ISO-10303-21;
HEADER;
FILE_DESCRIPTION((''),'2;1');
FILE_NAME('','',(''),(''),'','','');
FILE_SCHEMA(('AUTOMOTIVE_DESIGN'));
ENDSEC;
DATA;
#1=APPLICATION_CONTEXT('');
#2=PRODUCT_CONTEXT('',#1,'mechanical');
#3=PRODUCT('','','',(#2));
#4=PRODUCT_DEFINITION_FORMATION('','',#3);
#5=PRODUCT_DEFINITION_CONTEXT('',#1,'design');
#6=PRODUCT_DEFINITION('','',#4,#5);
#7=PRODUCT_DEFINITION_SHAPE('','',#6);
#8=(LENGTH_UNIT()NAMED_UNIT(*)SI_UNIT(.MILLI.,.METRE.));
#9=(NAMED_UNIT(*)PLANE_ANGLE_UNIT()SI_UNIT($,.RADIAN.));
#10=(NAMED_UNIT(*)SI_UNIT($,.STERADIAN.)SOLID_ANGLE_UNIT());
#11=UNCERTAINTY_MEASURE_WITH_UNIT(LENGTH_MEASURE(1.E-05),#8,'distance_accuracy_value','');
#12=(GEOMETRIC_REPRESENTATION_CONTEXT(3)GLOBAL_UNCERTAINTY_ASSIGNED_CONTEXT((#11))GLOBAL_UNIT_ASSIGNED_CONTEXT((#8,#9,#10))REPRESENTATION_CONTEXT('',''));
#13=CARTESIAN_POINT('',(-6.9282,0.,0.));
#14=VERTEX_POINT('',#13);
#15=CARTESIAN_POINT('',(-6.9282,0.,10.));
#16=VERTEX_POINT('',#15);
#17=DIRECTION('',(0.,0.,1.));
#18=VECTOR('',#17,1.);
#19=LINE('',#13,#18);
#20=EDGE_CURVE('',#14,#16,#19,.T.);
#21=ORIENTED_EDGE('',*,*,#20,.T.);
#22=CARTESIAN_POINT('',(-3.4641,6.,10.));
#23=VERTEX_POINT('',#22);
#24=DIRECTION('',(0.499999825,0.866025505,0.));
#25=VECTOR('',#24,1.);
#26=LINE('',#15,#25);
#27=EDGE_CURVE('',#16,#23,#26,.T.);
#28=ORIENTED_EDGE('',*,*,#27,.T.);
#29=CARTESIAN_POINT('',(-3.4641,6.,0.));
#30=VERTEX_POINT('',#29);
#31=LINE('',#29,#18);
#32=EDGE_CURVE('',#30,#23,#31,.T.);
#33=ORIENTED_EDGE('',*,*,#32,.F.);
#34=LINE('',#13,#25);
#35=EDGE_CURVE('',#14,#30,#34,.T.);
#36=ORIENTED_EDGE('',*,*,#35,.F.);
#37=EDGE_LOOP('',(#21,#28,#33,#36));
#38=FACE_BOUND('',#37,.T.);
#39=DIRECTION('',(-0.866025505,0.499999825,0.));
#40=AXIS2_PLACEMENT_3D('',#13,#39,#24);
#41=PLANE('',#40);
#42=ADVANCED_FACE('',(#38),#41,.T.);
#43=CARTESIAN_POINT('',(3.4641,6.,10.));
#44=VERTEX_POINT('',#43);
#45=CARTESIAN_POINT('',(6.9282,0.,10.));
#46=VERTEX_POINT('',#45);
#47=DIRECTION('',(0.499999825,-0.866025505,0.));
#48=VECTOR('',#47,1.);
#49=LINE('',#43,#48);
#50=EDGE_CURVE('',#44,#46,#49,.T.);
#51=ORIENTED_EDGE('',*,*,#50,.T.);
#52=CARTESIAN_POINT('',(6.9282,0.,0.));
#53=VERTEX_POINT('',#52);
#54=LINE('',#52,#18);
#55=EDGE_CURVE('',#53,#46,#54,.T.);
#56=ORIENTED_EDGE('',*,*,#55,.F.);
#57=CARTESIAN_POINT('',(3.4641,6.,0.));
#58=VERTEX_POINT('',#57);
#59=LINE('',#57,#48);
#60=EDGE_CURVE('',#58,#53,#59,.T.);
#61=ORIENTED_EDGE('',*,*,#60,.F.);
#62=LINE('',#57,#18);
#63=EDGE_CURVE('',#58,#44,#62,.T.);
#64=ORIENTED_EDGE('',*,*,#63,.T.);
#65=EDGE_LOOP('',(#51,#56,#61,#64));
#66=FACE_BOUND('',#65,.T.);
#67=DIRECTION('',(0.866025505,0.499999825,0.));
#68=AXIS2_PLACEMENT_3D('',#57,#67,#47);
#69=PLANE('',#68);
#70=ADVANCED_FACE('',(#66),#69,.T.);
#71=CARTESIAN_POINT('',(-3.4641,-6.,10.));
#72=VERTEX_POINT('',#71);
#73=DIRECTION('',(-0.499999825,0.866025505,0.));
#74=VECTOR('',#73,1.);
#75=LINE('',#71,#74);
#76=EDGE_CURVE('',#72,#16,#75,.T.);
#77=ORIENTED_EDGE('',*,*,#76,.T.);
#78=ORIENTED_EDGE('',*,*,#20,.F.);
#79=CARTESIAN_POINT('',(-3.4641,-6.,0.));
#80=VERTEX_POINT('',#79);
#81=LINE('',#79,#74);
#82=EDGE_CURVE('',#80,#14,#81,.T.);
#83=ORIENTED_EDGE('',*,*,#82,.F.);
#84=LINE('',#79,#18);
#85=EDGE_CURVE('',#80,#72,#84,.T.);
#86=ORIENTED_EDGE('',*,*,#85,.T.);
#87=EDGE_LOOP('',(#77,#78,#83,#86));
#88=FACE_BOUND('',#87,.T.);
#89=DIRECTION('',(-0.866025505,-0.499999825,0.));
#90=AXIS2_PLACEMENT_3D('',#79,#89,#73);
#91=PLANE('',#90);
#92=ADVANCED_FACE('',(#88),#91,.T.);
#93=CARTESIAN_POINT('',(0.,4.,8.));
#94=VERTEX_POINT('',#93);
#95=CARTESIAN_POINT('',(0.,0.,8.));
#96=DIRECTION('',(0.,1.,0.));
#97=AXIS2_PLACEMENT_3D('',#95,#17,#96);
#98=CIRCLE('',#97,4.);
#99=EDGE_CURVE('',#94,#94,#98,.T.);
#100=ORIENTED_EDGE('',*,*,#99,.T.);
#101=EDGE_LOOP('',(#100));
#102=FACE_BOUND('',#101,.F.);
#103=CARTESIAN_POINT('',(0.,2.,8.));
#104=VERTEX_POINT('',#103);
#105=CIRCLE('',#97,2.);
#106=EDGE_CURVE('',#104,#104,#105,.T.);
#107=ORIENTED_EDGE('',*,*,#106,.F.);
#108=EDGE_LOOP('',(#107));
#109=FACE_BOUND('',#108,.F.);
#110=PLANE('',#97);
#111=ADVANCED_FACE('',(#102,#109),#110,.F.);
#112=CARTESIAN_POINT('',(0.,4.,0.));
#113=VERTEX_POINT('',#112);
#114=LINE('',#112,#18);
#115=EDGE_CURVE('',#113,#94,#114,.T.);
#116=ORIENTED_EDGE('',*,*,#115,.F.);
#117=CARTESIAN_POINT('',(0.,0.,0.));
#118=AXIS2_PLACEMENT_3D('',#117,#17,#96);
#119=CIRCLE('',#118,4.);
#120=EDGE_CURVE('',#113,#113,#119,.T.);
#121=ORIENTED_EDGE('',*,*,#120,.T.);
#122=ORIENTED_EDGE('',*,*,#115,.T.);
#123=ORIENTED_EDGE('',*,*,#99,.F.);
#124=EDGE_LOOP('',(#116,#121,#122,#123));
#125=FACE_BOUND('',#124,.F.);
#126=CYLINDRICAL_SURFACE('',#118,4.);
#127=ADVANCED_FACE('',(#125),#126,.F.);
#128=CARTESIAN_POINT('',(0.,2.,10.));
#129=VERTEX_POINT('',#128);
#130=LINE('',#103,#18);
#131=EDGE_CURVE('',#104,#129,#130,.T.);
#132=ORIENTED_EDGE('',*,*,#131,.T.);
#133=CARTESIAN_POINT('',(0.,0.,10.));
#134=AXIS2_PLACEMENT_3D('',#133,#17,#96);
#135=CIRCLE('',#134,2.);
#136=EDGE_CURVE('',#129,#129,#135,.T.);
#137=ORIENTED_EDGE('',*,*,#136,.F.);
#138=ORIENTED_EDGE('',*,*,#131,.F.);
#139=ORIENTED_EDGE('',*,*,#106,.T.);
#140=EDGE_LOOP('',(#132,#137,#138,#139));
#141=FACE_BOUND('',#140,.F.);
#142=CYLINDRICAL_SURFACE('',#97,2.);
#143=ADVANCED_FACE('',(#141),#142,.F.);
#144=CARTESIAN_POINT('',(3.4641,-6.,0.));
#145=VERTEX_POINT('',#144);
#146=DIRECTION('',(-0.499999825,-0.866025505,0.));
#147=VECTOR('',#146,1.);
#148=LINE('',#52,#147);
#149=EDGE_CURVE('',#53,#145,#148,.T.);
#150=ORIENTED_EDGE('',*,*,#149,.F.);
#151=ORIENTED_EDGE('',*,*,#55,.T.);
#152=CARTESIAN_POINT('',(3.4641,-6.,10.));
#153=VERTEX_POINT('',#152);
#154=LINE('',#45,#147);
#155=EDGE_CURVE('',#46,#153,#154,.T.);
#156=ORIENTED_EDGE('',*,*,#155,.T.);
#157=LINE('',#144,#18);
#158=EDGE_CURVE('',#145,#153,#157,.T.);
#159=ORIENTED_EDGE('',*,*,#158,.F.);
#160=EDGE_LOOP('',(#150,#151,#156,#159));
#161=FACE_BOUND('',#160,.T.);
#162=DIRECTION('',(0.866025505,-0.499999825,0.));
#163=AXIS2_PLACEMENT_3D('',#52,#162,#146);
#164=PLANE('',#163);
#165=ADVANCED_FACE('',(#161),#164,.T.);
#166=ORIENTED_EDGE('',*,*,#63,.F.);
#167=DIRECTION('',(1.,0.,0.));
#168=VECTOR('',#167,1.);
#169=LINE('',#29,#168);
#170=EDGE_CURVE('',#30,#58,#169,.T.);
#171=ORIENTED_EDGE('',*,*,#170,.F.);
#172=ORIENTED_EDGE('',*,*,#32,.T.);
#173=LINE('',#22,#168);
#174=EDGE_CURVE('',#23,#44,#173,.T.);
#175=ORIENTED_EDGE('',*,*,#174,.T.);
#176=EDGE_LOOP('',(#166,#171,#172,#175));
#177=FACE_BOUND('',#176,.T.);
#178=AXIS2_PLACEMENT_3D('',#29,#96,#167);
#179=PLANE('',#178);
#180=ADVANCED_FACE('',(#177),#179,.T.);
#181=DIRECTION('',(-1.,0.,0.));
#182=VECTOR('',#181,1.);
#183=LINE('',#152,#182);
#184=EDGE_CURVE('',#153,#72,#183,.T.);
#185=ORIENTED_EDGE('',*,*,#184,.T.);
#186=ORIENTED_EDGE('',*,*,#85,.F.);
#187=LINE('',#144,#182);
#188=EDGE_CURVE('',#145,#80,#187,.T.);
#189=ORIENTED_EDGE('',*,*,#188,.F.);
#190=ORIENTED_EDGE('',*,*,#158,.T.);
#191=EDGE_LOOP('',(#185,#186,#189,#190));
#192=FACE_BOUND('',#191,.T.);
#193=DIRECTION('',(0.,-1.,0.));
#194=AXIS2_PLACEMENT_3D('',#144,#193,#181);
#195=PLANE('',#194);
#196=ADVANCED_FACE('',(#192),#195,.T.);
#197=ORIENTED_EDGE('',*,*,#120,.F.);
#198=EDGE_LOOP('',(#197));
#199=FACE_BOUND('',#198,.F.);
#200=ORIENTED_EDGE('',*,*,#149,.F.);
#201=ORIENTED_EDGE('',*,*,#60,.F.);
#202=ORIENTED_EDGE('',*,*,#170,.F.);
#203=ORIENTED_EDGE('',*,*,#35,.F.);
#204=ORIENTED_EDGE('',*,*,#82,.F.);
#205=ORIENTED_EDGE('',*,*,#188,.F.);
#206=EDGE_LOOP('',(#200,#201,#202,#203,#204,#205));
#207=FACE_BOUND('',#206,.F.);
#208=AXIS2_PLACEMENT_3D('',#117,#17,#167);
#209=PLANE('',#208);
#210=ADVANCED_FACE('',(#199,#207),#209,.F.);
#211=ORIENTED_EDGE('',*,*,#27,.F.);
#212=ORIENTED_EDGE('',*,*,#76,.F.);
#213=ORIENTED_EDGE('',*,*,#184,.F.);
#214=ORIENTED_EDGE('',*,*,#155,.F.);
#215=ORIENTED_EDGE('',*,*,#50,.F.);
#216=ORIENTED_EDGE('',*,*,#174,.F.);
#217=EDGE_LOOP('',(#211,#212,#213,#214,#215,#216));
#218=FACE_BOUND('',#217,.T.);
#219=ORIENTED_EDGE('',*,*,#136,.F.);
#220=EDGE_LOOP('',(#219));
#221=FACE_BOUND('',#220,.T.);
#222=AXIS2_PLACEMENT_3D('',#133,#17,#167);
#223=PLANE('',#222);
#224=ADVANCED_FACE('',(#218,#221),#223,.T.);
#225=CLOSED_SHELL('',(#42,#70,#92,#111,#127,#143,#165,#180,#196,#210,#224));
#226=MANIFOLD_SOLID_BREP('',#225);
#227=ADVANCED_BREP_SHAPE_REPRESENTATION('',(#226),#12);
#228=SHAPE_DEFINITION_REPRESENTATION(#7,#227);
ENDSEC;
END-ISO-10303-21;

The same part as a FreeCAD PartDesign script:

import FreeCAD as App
import Part
import Sketcher
Q = App.Units.Quantity


def add_polygon(sketch, points):
    """Adds a closed chain of lines whose ends are joined by coincident constraints."""
    first, n = sketch.GeometryCount, len(points)
    for a, b in zip(points, points[1:] + points[:1]):
        sketch.addGeometry(Part.LineSegment(App.Vector(*a, 0), App.Vector(*b, 0)), False)
    for i in range(n):
        sketch.addConstraint(Sketcher.Constraint("Coincident", first + i, 2, first + (i + 1) % n, 1))

doc = App.newDocument("Part")
body = doc.addObject("PartDesign::Body", "Body")

# Sketch on XY plane
sketch1 = body.newObject("Sketcher::SketchObject", "Sketch")
sketch1.AttachmentSupport = (doc.getObject("XY_Plane"), [""])
sketch1.MapMode = "FlatFace"
add_polygon(sketch1, [(-7, 0), (-3, -6), (3, -6), (7, 0), (3, 6), (-3, 6)])  # lines 0-5
sketch1.addConstraint(Sketcher.Constraint("Horizontal", 1))
sketch1.addConstraint(Sketcher.Constraint("Horizontal", 4))
sketch1.addConstraint(Sketcher.Constraint("Symmetric", 0, 2, 3, 2, -1, 1))
sketch1.addConstraint(Sketcher.Constraint("Symmetric", 2, 2, 5, 2, -1, 1))
sketch1.addConstraint(Sketcher.Constraint("PointOnObject", 2, 2, -1))
sketch1.addConstraint(Sketcher.Constraint("Parallel", 2, 5))
sketch1.addConstraint(Sketcher.Constraint("Vertical", 1, 2, 3, 2))
sketch1.addConstraint(Sketcher.Constraint("DistanceY", 1, 2, 3, 2, 12.0))
sketch1.addConstraint(Sketcher.Constraint("Angle", 0, Q("-60 deg")))
sketch1.addConstraint(Sketcher.Constraint("DistanceX", 1, 1, 1, 2, 6.9282))
pad1 = body.newObject("PartDesign::Pad", "Pad")
pad1.Profile = sketch1
pad1.Length = 10

# Sketch on XY plane
sketch2 = body.newObject("Sketcher::SketchObject", "Sketch001")
sketch2.AttachmentSupport = (doc.getObject("XY_Plane"), [""])
sketch2.MapMode = "FlatFace"
sketch2.addGeometry(Part.Circle(App.Vector(0, 0, 0), App.Vector(0, 0, 1), 2), False)
sketch2.addConstraint(Sketcher.Constraint("Coincident", 0, 3, -1, 1))
sketch2.addConstraint(Sketcher.Constraint("Diameter", 0, 4.0))
doc.recompute()
hole = body.newObject("PartDesign::Hole", "Hole")
hole.Profile = sketch2
hole.ThreadType = "None"
hole.Diameter = 4
hole.DepthType = "ThroughAll"
hole.HoleCutType = "Counterbore"
hole.HoleCutDiameter = 8
hole.HoleCutDepth = 8
hole.Reversed = True

doc.recompute()
